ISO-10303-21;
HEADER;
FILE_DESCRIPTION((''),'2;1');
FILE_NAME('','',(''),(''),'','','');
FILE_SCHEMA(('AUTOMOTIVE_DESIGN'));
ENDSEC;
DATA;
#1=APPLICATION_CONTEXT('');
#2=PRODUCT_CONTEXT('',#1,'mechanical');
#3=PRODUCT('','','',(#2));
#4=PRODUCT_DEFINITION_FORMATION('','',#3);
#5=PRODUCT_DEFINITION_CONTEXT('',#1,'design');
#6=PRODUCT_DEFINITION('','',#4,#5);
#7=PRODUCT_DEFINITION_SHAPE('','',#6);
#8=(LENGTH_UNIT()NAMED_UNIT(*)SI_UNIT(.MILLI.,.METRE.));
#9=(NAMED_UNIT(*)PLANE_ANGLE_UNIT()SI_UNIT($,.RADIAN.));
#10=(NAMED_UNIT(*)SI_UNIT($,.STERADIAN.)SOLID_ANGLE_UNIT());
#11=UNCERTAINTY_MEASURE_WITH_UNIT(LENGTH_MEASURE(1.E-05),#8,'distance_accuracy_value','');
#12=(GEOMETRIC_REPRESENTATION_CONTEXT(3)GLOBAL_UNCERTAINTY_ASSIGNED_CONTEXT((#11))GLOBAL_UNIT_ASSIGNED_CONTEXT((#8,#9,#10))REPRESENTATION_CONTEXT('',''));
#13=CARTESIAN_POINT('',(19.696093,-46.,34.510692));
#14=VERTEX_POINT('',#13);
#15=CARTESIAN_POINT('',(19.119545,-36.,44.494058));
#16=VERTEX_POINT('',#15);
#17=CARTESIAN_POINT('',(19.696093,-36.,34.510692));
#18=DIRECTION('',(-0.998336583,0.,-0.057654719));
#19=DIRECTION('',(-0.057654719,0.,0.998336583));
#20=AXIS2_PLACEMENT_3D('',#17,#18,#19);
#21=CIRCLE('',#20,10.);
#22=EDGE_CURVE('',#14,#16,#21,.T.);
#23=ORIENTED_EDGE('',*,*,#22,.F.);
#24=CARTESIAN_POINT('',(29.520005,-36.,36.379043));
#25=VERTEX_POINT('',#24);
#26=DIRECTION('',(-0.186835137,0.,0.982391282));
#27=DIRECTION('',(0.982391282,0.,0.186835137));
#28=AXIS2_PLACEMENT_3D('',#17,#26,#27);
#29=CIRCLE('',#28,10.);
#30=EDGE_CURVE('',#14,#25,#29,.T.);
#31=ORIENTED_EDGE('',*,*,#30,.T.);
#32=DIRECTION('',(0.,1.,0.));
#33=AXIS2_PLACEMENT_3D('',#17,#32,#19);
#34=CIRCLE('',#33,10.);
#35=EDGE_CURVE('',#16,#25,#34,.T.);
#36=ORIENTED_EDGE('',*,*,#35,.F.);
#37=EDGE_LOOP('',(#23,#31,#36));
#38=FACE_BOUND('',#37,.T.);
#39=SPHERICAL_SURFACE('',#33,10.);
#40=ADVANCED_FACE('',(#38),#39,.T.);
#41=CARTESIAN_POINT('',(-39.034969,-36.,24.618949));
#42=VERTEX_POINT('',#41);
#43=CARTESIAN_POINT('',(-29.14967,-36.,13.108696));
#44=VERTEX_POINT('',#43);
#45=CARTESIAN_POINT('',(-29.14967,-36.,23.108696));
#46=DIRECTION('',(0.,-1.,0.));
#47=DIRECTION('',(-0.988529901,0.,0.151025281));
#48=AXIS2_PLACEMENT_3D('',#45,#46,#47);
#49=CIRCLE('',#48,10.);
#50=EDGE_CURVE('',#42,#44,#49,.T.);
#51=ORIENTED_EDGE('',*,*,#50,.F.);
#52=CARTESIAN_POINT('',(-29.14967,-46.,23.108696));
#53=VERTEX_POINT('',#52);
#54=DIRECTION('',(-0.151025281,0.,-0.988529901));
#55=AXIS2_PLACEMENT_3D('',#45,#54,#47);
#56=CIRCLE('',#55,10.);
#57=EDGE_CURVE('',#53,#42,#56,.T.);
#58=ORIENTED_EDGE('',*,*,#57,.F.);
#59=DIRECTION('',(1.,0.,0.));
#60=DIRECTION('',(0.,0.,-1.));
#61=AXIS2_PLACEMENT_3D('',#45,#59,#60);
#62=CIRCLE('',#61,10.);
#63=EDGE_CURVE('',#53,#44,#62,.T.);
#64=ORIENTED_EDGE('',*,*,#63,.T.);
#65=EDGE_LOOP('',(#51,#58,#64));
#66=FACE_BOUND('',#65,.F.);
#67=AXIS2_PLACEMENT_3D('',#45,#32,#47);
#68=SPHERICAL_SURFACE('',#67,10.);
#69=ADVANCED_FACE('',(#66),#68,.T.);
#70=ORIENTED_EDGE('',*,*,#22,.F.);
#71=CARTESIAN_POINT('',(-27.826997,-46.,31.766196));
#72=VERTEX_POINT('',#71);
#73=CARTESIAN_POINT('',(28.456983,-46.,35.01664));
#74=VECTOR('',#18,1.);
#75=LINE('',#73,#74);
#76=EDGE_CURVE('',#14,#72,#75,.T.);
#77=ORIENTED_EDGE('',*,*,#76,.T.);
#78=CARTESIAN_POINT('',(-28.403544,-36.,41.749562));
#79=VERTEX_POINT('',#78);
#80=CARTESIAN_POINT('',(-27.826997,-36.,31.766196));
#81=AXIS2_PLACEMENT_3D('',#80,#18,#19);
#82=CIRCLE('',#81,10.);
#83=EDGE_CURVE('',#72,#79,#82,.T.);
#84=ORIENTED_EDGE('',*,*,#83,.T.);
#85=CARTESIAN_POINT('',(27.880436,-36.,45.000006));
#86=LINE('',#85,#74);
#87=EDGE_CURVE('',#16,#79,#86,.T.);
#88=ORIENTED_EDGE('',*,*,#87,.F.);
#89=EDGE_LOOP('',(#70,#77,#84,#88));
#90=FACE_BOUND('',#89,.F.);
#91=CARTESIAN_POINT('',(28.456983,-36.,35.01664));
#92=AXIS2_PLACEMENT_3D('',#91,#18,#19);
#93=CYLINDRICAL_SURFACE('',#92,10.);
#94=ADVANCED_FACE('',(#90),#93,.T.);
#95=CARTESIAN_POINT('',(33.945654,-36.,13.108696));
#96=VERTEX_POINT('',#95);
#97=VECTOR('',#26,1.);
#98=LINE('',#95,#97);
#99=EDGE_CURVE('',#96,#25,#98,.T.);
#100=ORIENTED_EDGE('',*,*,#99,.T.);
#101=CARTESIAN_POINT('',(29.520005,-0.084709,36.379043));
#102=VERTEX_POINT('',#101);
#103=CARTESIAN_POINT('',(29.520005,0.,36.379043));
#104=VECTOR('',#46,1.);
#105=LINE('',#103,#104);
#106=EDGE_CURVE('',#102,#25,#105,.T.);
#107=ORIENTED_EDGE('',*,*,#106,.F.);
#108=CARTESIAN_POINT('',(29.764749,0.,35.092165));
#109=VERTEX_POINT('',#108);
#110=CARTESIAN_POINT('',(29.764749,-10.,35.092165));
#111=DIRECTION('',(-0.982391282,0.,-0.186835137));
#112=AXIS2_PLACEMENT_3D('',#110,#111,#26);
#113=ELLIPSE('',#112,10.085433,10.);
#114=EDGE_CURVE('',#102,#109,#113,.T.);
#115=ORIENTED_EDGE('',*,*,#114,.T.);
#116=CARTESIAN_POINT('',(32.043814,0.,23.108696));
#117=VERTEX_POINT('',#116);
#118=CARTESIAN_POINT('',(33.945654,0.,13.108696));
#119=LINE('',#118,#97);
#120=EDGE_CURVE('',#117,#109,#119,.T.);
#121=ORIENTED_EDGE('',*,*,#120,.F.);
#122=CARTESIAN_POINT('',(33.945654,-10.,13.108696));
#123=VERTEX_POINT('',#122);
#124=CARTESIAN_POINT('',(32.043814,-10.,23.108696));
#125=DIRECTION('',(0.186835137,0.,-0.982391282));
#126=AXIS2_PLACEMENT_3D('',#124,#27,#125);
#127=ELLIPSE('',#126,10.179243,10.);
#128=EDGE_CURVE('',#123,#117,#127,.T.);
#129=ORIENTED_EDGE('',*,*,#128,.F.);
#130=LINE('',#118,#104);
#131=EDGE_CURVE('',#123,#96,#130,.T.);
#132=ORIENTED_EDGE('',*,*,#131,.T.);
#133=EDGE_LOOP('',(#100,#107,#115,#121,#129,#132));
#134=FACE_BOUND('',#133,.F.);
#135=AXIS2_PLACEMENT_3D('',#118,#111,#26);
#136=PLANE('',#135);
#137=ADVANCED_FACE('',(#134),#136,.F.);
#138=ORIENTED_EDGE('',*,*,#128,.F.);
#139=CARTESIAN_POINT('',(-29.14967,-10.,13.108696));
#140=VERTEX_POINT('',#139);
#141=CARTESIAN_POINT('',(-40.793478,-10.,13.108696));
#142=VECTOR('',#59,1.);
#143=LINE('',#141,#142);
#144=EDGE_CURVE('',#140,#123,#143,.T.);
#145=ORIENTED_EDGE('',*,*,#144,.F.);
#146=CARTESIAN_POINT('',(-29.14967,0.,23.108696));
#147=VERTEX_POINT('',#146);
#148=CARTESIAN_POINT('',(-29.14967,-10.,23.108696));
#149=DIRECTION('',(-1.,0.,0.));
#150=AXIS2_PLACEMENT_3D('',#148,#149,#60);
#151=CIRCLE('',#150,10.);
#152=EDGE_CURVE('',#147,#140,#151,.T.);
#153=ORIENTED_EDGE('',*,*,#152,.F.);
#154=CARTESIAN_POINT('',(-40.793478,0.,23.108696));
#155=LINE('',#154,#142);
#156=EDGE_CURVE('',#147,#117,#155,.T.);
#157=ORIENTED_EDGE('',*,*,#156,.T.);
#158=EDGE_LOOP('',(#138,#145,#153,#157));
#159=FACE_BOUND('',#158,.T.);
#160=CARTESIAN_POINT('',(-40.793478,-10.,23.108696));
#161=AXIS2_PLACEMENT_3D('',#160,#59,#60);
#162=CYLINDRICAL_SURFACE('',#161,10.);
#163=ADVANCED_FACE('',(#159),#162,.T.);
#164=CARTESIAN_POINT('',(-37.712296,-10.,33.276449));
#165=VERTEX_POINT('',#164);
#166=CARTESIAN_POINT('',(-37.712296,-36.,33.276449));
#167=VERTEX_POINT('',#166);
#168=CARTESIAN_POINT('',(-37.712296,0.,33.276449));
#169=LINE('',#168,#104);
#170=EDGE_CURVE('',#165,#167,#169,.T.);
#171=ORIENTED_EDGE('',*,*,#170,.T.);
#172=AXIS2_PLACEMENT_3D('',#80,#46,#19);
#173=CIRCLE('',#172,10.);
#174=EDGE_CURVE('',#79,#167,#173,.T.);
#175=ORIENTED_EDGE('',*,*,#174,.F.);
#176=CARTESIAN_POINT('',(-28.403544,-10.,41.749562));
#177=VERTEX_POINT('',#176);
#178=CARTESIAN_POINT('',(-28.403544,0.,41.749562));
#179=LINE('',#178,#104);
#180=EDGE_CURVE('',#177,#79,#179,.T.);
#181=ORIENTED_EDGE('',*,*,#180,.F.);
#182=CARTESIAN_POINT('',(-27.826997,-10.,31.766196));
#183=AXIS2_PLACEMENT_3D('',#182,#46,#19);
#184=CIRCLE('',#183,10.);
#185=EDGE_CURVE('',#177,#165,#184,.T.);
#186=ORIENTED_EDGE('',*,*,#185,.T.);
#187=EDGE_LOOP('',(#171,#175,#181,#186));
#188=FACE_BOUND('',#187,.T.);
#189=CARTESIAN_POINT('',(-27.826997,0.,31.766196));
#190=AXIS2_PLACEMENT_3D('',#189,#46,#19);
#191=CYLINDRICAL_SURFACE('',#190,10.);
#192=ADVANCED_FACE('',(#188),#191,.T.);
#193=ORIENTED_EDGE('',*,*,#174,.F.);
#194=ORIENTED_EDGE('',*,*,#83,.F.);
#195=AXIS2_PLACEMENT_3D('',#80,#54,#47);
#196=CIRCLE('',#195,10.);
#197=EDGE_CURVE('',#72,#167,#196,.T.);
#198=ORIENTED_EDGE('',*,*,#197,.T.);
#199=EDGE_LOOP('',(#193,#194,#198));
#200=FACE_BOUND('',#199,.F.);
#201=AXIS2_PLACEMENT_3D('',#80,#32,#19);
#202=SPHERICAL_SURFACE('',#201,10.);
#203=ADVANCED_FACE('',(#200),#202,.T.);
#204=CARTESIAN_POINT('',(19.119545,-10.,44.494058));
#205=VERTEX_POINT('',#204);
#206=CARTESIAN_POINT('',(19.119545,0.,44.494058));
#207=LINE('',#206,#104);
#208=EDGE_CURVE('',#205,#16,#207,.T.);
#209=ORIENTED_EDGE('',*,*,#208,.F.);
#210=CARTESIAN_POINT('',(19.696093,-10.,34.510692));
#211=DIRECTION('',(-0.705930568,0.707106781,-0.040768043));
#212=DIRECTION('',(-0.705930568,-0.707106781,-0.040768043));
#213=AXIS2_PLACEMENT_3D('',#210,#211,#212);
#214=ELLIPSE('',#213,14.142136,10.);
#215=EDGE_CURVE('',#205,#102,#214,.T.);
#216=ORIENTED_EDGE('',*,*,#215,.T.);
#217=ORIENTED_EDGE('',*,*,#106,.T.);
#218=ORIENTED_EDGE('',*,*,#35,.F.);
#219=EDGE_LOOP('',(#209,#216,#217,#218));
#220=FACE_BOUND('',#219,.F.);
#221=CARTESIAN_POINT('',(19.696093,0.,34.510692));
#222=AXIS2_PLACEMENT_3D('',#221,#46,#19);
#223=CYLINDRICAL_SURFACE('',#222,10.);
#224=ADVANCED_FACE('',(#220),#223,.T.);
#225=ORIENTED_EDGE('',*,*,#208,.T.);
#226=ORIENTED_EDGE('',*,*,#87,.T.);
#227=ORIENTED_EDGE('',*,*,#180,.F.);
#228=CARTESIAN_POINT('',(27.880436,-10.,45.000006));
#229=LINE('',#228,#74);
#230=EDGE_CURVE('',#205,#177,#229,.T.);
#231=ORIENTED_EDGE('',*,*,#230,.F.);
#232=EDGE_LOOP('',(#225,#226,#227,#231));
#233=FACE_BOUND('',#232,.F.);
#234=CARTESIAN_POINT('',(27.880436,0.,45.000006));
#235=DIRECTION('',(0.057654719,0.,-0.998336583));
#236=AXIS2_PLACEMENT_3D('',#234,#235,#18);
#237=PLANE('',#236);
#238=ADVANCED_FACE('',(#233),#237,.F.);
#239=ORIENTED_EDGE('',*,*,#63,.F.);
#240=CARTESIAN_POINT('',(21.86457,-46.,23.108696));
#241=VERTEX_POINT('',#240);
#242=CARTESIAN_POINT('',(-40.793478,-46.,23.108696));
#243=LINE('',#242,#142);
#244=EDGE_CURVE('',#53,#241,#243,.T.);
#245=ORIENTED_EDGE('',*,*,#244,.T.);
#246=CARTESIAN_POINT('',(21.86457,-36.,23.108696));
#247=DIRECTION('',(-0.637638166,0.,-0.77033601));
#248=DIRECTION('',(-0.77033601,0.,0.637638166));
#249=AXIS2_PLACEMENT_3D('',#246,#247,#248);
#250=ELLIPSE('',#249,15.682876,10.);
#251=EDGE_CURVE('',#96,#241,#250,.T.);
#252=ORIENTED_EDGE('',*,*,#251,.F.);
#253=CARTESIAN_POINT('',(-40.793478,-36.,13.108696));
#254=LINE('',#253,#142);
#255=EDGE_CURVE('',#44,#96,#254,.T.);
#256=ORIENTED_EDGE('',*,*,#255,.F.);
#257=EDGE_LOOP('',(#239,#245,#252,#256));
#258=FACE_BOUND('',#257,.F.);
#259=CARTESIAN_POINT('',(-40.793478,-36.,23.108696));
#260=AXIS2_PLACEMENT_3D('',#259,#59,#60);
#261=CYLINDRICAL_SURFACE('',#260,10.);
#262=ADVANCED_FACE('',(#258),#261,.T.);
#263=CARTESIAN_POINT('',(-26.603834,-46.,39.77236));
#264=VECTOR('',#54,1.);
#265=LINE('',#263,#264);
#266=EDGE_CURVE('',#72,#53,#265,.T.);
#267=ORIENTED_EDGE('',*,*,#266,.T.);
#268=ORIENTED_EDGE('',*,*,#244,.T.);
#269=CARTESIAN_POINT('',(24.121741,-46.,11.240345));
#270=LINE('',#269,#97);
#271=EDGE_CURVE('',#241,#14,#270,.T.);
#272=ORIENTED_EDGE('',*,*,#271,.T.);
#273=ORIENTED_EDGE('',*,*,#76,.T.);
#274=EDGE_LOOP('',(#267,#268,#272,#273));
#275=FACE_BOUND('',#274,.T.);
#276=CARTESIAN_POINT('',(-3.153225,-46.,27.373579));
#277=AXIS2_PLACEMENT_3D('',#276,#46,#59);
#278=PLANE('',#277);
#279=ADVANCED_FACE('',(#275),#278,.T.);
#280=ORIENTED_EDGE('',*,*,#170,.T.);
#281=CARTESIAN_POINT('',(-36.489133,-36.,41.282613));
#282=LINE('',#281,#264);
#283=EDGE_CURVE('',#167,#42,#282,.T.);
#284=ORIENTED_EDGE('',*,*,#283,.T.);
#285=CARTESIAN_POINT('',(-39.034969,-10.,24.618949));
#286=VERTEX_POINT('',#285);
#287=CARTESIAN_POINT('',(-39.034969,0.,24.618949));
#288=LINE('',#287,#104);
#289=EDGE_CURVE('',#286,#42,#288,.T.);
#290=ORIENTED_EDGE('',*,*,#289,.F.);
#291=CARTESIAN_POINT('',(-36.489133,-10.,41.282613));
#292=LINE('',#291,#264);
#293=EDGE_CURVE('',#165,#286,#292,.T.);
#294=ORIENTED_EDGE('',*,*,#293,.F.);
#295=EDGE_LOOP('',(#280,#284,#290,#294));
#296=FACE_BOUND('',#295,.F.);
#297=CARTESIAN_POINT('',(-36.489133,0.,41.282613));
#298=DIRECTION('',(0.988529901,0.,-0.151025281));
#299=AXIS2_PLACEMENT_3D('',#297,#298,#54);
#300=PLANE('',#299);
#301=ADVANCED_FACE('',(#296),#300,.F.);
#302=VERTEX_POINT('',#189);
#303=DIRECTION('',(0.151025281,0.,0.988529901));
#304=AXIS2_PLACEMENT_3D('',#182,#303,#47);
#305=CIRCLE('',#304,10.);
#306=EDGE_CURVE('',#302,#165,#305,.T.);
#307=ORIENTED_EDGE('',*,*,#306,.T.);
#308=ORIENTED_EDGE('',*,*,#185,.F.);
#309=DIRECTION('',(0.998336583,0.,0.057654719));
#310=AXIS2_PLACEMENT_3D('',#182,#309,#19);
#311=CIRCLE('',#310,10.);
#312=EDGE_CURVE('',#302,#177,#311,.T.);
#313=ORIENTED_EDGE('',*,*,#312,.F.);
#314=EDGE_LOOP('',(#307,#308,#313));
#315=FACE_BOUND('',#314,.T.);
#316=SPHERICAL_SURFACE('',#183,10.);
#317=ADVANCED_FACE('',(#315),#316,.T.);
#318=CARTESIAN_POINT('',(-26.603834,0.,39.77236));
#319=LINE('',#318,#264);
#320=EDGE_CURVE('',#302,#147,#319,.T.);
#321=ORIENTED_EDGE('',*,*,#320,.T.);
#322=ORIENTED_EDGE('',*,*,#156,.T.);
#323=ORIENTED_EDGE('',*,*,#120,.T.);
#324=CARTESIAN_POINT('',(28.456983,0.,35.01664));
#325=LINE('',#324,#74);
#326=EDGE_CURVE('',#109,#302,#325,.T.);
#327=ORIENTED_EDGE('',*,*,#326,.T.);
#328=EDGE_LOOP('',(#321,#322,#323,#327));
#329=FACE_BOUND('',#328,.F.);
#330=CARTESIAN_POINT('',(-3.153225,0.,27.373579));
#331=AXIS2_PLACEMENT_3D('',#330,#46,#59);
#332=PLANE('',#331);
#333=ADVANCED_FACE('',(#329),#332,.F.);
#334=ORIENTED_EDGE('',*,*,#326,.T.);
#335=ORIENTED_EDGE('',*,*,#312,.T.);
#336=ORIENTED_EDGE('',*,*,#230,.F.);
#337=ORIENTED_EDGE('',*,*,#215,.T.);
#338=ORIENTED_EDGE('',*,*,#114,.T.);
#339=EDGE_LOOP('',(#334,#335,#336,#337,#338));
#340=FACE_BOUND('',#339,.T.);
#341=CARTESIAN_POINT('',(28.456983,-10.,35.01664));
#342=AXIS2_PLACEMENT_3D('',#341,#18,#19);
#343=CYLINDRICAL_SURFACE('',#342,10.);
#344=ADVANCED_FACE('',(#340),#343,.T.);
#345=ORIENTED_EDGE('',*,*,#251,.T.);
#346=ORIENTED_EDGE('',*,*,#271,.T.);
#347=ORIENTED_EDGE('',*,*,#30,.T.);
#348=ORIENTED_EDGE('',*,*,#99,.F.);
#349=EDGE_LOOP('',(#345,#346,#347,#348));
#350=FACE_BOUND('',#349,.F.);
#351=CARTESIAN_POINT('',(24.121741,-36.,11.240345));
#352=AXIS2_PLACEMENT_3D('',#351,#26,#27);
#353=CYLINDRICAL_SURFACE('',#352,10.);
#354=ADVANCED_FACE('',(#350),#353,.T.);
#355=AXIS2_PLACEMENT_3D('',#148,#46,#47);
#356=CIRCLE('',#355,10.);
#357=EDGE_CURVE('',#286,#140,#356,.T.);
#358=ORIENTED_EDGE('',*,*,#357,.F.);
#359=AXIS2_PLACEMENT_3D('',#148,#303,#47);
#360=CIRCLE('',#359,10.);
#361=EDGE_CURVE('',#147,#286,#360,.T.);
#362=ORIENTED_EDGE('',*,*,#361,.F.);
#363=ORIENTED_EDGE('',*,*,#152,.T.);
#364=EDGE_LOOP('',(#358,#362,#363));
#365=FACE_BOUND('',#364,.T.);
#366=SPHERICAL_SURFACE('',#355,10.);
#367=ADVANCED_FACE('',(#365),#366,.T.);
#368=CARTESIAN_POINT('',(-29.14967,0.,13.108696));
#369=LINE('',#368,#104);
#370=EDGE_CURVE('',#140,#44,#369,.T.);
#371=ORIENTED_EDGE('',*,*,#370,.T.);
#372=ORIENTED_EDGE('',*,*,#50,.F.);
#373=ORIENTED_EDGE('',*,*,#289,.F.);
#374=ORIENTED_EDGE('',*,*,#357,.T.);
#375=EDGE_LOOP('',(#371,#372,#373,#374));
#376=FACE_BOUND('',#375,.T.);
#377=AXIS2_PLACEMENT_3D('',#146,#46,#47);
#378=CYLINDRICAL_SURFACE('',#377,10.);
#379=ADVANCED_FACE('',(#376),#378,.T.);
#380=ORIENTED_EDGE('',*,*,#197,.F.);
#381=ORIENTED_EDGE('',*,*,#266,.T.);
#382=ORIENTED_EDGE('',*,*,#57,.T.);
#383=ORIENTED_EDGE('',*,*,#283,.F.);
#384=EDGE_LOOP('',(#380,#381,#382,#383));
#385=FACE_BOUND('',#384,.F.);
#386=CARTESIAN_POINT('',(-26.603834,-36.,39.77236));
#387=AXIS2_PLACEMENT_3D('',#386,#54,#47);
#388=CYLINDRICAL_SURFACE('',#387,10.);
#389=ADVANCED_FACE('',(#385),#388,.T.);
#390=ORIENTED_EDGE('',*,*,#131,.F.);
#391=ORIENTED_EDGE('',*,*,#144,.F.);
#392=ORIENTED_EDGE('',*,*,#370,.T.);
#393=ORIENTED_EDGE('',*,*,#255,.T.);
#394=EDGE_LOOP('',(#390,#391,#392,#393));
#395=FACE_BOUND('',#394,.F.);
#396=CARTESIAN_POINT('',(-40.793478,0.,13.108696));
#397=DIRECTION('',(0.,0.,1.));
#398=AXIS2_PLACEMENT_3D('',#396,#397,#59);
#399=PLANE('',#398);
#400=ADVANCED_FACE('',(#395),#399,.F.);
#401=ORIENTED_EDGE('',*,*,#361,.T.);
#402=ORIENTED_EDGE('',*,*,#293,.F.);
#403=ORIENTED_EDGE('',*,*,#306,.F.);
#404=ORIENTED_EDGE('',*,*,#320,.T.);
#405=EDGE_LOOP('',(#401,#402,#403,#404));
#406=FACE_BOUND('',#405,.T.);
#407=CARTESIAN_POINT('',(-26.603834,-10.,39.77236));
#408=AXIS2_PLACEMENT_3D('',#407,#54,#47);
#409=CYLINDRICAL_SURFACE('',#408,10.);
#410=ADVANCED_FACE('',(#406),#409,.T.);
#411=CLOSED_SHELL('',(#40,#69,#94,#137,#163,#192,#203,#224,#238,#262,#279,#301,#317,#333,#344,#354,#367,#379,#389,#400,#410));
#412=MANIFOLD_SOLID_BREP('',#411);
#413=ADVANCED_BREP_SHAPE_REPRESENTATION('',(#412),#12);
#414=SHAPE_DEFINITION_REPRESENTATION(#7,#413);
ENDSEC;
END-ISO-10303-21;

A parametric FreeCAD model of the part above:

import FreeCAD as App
import Part
import Sketcher
from FreeCAD import Vector
Q = App.Units.Quantity


def edges_at(feature, points):
    """Names of the edges that pass closest to the given points."""
    edges = feature.Shape.Edges
    near = lambda p: min(range(len(edges)), key=lambda i: edges[i].distToShape(Part.Vertex(*p))[0])
    return sorted({f"Edge{near(p) + 1}" for p in points})


def add_polygon(sketch, points):
    """Adds a closed chain of lines whose ends are joined by coincident constraints."""
    first, n = sketch.GeometryCount, len(points)
    for a, b in zip(points, points[1:] + points[:1]):
        sketch.addGeometry(Part.LineSegment(App.Vector(*a, 0), App.Vector(*b, 0)), False)
    for i in range(n):
        sketch.addConstraint(Sketcher.Constraint("Coincident", first + i, 2, first + (i + 1) % n, 1))

doc = App.newDocument("Part")
body = doc.addObject("PartDesign::Body", "Body")

sketch1 = body.newObject("Sketcher::SketchObject", "Sketch")
sketch1.AttachmentSupport = (doc.getObject("XZ_Plane"), [""])
sketch1.MapMode = "FlatFace"
add_polygon(sketch1, [(27.880436, 45.000006), (-36.489133, 41.282613), (-40.793478, 13.108696), (33.945654, 13.108696)])
sketch1.addConstraint([
    Sketcher.Constraint("Horizontal", 2),
    Sketcher.Constraint("DistanceX", 2, 1, 2, 2, Q("74.739132 mm")),
    Sketcher.Constraint("Distance", 0, Q("64.476821 mm")),
    Sketcher.Constraint("Distance", 3, Q("32.462941 mm")),
    Sketcher.Constraint("DistanceY", 2, 2, 3, 2, Q("31.89131 mm")),
    Sketcher.Constraint("DistanceX", 0, 2, 3, 2, Q("64.369569 mm")),
    Sketcher.Constraint("DistanceX", 0, 2, -1, 1, Q("36.489133 mm")),
    Sketcher.Constraint("DistanceY", -1, 1, 0, 2, Q("41.282613 mm")),
])
pad1 = body.newObject("PartDesign::Pad", "Pad")
pad1.Profile = sketch1
pad1.Length = 46
doc.recompute()

fillet = body.newObject("PartDesign::Fillet", "Fillet")
fillet.Base = (pad1, edges_at(pad1, [
    (27.88, -23, 45),
    (-36.489, -23, 41.283),
    (-4.304, 0, 43.141),
    (-4.304, -46, 43.141),
    (-3.424, 0, 13.109),
    (-40.793, -23, 13.109),
    (-38.641, 0, 27.196),
    (30.913, -46, 29.054),
    (-38.641, -46, 27.196),
    (-3.424, -46, 13.109),
]))
fillet.Radius = 10

doc.recompute()
